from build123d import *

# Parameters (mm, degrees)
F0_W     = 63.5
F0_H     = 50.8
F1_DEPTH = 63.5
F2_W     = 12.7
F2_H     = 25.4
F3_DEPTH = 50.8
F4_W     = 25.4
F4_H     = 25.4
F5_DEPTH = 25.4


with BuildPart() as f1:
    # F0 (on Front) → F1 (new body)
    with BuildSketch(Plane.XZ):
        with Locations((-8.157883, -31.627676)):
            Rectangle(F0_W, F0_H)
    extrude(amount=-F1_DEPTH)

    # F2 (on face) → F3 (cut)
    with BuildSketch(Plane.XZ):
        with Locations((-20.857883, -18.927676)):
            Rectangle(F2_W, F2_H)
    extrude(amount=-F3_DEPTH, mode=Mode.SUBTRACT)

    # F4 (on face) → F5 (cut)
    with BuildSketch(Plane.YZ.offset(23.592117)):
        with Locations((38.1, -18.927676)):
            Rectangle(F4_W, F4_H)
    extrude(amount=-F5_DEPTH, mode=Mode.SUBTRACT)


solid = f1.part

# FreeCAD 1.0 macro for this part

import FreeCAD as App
import Part
import Sketcher
Q = App.Units.Quantity

doc = App.newDocument("Part")
body = doc.addObject("PartDesign::Body", "Body")

# Sketch on XZ plane
sketch1 = doc.addObject("Sketcher::SketchObject", "Sketch")
body.addObject(sketch1)
sketch1.AttachmentSupport = (doc.XZ_Plane, [""])
sketch1.MapMode = "FlatFace"
sketch1.addGeometry(Part.LineSegment(App.Vector(-39.907883, -6.227676, 0), App.Vector(-39.907883, -57.027676, 0)), False)
sketch1.addGeometry(Part.LineSegment(App.Vector(-39.907883, -57.027676, 0), App.Vector(23.592117, -57.027676, 0)), False)
sketch1.addGeometry(Part.LineSegment(App.Vector(23.592117, -57.027676, 0), App.Vector(23.592117, -6.227676, 0)), False)
sketch1.addGeometry(Part.LineSegment(App.Vector(23.592117, -6.227676, 0), App.Vector(-39.907883, -6.227676, 0)), False)
sketch1.addConstraint(Sketcher.Constraint("Coincident", 0, 2, 1, 1))
sketch1.addConstraint(Sketcher.Constraint("Coincident", 1, 2, 2, 1))
sketch1.addConstraint(Sketcher.Constraint("Coincident", 2, 2, 3, 1))
sketch1.addConstraint(Sketcher.Constraint("Coincident", 3, 2, 0, 1))
sketch1.addConstraint(Sketcher.Constraint("Vertical", 0))
sketch1.addConstraint(Sketcher.Constraint("Horizontal", 1))
sketch1.addConstraint(Sketcher.Constraint("Vertical", 2))
sketch1.addConstraint(Sketcher.Constraint("Horizontal", 3))
sketch1.addConstraint(Sketcher.Constraint("DistanceY", 0, 2, 0, 1, Q("2 in")))
sketch1.addConstraint(Sketcher.Constraint("DistanceX", 1, 1, 1, 2, Q("2.5 in")))
sketch1.addConstraint(Sketcher.Constraint("DistanceX", 0, 2, -1, 1, 39.907883))
sketch1.addConstraint(Sketcher.Constraint("DistanceY", 0, 2, -1, 1, 57.027676))
pad1 = doc.addObject("PartDesign::Pad", "Pad")
body.addObject(pad1)
pad1.Profile = sketch1
pad1.Length = Q("2.5 in")
pad1.Reversed = True

# Sketch on XZ plane
sketch2 = doc.addObject("Sketcher::SketchObject", "Sketch001")
body.addObject(sketch2)
sketch2.AttachmentSupport = (doc.XZ_Plane, [""])
sketch2.MapMode = "FlatFace"
sketch2.addGeometry(Part.LineSegment(App.Vector(-27.207883, -6.227676, 0), App.Vector(-27.207883, -31.627676, 0)), False)
sketch2.addGeometry(Part.LineSegment(App.Vector(-27.207883, -31.627676, 0), App.Vector(-14.507883, -31.627676, 0)), False)
sketch2.addGeometry(Part.LineSegment(App.Vector(-14.507883, -31.627676, 0), App.Vector(-14.507883, -6.227676, 0)), False)
sketch2.addGeometry(Part.LineSegment(App.Vector(-14.507883, -6.227676, 0), App.Vector(-27.207883, -6.227676, 0)), False)
sketch2.addConstraint(Sketcher.Constraint("Coincident", 0, 2, 1, 1))
sketch2.addConstraint(Sketcher.Constraint("Coincident", 1, 2, 2, 1))
sketch2.addConstraint(Sketcher.Constraint("Coincident", 2, 2, 3, 1))
sketch2.addConstraint(Sketcher.Constraint("Coincident", 3, 2, 0, 1))
sketch2.addConstraint(Sketcher.Constraint("Vertical", 0))
sketch2.addConstraint(Sketcher.Constraint("Horizontal", 1))
sketch2.addConstraint(Sketcher.Constraint("Vertical", 2))
sketch2.addConstraint(Sketcher.Constraint("Horizontal", 3))
sketch2.addConstraint(Sketcher.Constraint("DistanceY", 0, 2, 0, 1, Q("1 in")))
sketch2.addConstraint(Sketcher.Constraint("DistanceX", 1, 1, 1, 2, Q("0.5 in")))
sketch2.addConstraint(Sketcher.Constraint("DistanceX", 0, 2, -1, 1, 27.207883))
sketch2.addConstraint(Sketcher.Constraint("DistanceY", 0, 2, -1, 1, 31.627676))
pocket1 = doc.addObject("PartDesign::Pocket", "Pocket")
body.addObject(pocket1)
pocket1.Profile = sketch2
pocket1.Length = Q("2 in")

# Sketch on YZ plane
sketch3 = doc.addObject("Sketcher::SketchObject", "Sketch002")
body.addObject(sketch3)
sketch3.AttachmentSupport = (doc.YZ_Plane, [""])
sketch3.MapMode = "FlatFace"
sketch3.AttachmentOffset = App.Placement(App.Vector(0, 0, 23.592117), App.Rotation())
sketch3.addGeometry(Part.LineSegment(App.Vector(25.4, -6.227676, 0), App.Vector(25.4, -31.627676, 0)), False)
sketch3.addGeometry(Part.LineSegment(App.Vector(25.4, -31.627676, 0), App.Vector(50.8, -31.627676, 0)), False)
sketch3.addGeometry(Part.LineSegment(App.Vector(50.8, -31.627676, 0), App.Vector(50.8, -6.227676, 0)), False)
sketch3.addGeometry(Part.LineSegment(App.Vector(50.8, -6.227676, 0), App.Vector(25.4, -6.227676, 0)), False)
sketch3.addConstraint(Sketcher.Constraint("Coincident", 0, 2, 1, 1))
sketch3.addConstraint(Sketcher.Constraint("Coincident", 1, 2, 2, 1))
sketch3.addConstraint(Sketcher.Constraint("Coincident", 2, 2, 3, 1))
sketch3.addConstraint(Sketcher.Constraint("Coincident", 3, 2, 0, 1))
sketch3.addConstraint(Sketcher.Constraint("Vertical", 0))
sketch3.addConstraint(Sketcher.Constraint("Horizontal", 1))
sketch3.addConstraint(Sketcher.Constraint("Vertical", 2))
sketch3.addConstraint(Sketcher.Constraint("Horizontal", 3))
sketch3.addConstraint(Sketcher.Constraint("Equal", 3, 0))
sketch3.addConstraint(Sketcher.Constraint("DistanceX", 1, 1, 1, 2, Q("1 in")))
sketch3.addConstraint(Sketcher.Constraint("DistanceX", -1, 1, 0, 2, Q("1 in")))
sketch3.addConstraint(Sketcher.Constraint("DistanceY", 0, 2, -1, 1, 31.627676))
pocket2 = doc.addObject("PartDesign::Pocket", "Pocket001")
body.addObject(pocket2)
pocket2.Profile = sketch3
pocket2.Length = Q("1 in")

doc.recompute()
